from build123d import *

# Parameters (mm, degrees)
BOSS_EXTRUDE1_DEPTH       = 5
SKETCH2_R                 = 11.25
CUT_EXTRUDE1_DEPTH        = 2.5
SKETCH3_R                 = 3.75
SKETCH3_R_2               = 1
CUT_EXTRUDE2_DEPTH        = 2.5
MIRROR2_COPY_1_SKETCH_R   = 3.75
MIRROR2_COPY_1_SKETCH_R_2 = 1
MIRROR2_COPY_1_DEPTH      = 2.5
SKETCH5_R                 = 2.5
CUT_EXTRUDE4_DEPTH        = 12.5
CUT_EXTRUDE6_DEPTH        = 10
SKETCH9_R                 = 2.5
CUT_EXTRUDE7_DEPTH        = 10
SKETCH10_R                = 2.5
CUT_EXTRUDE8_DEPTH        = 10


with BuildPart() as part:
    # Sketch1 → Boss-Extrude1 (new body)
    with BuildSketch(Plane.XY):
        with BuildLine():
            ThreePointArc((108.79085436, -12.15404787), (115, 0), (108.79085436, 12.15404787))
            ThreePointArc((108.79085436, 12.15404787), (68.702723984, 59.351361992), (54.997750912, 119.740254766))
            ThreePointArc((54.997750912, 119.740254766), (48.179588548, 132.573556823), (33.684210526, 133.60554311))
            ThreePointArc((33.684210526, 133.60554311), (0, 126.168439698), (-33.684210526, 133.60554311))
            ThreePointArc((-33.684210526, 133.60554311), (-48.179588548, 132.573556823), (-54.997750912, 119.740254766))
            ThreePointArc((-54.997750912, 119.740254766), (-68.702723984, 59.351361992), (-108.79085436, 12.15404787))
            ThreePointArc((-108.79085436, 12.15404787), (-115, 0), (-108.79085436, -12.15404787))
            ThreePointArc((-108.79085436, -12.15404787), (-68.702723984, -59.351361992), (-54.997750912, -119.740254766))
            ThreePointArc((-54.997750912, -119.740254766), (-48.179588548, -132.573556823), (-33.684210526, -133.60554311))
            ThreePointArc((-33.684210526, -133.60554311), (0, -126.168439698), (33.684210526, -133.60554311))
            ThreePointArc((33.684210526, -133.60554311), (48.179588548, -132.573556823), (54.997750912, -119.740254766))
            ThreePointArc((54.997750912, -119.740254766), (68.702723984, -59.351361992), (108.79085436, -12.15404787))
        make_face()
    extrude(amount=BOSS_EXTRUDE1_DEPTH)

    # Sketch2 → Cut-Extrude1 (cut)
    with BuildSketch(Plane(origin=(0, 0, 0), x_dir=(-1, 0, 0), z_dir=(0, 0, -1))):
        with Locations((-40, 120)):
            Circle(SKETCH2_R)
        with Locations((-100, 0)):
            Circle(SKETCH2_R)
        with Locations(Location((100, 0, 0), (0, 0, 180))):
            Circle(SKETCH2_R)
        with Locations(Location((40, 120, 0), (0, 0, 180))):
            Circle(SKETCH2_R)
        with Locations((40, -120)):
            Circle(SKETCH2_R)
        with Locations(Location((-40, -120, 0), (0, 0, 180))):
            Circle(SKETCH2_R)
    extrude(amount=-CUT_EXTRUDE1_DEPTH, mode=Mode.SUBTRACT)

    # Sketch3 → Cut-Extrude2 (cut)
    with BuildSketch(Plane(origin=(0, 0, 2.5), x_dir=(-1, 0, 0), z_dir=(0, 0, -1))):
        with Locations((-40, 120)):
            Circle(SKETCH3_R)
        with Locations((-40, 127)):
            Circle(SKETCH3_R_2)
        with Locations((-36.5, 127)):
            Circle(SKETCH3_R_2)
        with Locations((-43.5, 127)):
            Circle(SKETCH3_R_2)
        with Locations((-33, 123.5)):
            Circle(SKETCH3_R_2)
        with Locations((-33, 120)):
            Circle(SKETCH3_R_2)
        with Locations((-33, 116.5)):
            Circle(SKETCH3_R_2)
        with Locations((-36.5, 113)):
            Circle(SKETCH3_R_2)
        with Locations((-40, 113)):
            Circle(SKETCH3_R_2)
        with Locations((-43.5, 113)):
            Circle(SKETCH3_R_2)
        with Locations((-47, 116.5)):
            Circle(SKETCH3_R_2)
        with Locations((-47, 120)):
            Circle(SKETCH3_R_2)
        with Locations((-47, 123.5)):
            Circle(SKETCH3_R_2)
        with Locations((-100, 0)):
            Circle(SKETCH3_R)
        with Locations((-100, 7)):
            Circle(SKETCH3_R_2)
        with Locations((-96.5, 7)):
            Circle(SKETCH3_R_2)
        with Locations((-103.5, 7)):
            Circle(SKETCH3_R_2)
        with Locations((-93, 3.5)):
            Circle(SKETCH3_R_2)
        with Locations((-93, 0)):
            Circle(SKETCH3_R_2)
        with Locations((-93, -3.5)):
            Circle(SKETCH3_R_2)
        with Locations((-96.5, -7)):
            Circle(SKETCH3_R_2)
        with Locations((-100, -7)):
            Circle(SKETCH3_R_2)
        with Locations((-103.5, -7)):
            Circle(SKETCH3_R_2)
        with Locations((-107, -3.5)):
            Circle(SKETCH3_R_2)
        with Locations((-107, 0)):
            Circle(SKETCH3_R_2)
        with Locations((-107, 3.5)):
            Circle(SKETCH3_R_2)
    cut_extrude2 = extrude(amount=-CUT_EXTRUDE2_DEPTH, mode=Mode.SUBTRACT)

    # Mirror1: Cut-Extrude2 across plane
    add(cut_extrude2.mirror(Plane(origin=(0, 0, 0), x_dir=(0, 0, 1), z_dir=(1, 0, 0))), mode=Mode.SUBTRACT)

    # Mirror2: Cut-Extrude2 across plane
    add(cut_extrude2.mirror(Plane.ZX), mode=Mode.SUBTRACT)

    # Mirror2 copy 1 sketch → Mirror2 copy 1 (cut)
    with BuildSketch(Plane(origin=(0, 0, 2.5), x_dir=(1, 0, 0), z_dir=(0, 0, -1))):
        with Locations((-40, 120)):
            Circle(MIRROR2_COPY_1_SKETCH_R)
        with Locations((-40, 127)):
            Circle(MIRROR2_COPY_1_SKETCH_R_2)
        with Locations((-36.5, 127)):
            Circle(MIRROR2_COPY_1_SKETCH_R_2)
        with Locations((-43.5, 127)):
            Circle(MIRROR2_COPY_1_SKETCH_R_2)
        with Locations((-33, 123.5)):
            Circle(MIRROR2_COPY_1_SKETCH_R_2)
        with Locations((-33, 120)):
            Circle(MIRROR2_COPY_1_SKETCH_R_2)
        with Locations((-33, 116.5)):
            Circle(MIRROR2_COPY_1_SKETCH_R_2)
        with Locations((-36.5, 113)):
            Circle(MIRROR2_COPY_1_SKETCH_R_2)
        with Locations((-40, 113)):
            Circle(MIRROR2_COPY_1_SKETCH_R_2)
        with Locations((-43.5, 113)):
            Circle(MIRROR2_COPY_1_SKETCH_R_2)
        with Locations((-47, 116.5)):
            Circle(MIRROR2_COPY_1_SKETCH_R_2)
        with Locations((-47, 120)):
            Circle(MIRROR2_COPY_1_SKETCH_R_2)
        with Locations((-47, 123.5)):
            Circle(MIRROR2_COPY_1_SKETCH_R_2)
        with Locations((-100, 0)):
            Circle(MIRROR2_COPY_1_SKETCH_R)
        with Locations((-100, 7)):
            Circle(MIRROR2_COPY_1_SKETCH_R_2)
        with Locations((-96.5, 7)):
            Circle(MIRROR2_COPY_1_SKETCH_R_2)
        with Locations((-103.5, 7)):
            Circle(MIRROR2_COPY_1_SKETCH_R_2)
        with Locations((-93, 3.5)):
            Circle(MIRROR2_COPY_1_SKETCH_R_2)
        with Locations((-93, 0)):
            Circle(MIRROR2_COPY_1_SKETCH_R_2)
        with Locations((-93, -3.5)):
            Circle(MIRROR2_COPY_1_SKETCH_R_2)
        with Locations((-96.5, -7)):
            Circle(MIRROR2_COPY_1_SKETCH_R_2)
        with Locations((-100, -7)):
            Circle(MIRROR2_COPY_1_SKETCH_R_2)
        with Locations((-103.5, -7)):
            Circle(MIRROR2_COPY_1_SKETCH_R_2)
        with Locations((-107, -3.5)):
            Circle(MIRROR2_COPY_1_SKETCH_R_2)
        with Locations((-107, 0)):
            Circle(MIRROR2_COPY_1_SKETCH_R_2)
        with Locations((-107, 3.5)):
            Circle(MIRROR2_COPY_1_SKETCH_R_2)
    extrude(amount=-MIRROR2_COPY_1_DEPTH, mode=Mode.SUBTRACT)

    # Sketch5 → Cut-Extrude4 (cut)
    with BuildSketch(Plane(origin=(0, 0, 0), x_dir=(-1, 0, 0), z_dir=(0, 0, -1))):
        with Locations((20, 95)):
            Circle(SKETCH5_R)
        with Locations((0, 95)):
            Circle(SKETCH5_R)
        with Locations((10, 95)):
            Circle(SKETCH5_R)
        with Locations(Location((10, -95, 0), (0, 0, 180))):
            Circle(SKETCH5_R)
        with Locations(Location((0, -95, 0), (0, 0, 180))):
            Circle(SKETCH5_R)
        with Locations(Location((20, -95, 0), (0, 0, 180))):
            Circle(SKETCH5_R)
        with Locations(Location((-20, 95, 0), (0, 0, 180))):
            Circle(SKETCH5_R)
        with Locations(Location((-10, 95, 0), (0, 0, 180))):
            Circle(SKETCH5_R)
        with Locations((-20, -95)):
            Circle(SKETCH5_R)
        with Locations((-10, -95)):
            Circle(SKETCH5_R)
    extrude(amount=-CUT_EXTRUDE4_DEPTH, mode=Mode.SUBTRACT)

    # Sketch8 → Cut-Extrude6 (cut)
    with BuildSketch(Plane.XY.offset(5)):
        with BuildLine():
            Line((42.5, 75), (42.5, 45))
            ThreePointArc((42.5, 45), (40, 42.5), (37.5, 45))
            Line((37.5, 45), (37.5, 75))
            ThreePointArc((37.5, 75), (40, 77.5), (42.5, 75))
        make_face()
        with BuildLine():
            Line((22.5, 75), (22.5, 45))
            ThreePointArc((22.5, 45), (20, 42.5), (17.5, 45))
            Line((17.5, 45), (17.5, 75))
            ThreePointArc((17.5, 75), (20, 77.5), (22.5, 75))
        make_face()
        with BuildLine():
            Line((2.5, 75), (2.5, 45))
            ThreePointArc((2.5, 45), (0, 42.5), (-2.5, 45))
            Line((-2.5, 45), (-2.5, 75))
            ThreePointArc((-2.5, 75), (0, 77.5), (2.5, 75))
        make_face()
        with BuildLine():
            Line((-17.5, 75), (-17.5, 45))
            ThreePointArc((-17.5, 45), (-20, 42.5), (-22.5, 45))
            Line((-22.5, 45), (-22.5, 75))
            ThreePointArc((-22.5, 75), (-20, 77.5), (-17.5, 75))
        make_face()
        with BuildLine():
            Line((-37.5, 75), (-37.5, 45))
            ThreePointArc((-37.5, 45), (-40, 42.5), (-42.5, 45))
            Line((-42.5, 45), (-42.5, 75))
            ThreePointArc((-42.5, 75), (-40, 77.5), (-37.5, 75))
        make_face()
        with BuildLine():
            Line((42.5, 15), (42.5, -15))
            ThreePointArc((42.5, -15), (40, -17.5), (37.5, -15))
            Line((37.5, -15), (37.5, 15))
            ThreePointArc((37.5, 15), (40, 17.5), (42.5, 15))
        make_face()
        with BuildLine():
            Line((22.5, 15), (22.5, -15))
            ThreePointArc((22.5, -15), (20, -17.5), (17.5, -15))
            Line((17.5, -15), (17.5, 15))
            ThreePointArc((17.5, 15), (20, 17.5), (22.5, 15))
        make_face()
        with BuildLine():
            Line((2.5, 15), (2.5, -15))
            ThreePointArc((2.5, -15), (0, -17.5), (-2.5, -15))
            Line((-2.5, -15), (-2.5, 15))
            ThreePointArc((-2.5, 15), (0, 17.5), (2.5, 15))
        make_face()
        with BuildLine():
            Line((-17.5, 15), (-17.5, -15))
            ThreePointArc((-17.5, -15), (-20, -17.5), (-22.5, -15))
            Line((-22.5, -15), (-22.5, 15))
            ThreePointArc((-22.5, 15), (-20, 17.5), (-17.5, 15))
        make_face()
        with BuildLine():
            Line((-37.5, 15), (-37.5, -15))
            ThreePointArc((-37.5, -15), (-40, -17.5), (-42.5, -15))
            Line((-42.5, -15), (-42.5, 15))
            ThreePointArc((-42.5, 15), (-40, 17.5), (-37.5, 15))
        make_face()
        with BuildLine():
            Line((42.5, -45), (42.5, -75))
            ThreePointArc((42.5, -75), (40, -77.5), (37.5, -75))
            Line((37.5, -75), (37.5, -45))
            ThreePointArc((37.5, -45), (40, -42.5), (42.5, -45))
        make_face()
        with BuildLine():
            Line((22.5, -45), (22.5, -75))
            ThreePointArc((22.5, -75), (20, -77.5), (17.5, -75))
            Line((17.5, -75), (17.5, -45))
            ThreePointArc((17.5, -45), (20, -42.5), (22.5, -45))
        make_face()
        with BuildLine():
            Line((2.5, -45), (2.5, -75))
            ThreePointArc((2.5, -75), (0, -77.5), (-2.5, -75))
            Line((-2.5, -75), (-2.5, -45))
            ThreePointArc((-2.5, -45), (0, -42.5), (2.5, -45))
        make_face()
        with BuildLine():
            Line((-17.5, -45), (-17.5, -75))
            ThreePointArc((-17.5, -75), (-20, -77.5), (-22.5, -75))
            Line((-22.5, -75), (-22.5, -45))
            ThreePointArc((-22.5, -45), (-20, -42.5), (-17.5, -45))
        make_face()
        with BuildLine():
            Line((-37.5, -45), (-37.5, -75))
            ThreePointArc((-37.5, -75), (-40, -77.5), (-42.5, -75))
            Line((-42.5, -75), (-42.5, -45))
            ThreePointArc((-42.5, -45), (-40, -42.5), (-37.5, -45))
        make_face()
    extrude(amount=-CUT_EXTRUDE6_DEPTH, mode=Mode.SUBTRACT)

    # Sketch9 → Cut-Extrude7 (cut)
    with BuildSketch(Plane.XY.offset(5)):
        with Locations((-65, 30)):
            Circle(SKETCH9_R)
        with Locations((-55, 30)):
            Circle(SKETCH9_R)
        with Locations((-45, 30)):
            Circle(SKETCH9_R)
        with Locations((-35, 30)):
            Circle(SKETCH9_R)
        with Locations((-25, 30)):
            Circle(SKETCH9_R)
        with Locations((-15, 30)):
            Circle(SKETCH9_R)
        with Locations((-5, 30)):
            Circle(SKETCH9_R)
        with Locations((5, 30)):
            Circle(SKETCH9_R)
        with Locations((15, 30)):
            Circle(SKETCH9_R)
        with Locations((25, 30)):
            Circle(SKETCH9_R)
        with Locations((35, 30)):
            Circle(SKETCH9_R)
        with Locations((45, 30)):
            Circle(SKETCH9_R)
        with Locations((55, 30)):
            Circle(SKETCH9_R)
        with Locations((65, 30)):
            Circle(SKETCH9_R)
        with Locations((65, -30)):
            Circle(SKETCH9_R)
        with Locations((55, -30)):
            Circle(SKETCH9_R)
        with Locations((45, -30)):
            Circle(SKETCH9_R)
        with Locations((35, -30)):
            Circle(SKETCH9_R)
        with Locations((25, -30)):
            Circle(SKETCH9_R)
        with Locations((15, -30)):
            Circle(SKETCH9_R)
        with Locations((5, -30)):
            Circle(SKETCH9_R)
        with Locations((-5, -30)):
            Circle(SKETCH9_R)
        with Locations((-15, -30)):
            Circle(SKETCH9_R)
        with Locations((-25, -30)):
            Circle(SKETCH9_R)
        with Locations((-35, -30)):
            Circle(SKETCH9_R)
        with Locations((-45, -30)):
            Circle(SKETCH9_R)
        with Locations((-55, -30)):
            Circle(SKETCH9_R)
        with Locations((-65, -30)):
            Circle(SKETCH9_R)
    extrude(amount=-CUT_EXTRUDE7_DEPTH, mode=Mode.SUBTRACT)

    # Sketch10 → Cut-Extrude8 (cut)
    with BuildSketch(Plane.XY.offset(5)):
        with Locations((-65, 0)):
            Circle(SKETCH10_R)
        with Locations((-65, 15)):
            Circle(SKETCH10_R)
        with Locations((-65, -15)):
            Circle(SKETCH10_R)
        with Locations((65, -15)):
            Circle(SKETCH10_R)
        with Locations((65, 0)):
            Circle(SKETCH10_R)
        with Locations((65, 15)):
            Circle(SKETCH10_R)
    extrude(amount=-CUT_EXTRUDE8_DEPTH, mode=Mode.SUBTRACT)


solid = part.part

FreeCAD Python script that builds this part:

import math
import FreeCAD as App
import Part
import Sketcher
Q = App.Units.Quantity

doc = App.newDocument("Part")
body = doc.addObject("PartDesign::Body", "Body")

sketch1 = doc.addObject("Sketcher::SketchObject", "Sketch")
body.addObject(sketch1)
sketch1.AttachmentSupport = (doc.XY_Plane, [""])
sketch1.MapMode = "FlatFace"
sketch1.addGeometry([
    Part.ArcOfCircle(Part.Circle(App.Vector(100, 0, 0), App.Vector(0, 0, 1), 15), math.radians(-54), math.radians(54)),
    Part.ArcOfCircle(Part.Circle(App.Vector(185, 117, 0), App.Vector(0, 0, 1), 130), math.radians(179), math.radians(234)),
    Part.ArcOfCircle(Part.Circle(App.Vector(40, 120, 0), App.Vector(0, 0, 1), 15), math.radians(-1), math.radians(115)),
    Part.ArcOfCircle(Part.Circle(App.Vector(0, 206, 0), App.Vector(0, 0, 1), 80), math.radians(-115), math.radians(-65)),
    Part.ArcOfCircle(Part.Circle(App.Vector(-40, 120, 0), App.Vector(0, 0, 1), 15), math.radians(65), math.radians(181)),
    Part.ArcOfCircle(Part.Circle(App.Vector(-185, 117, 0), App.Vector(0, 0, 1), 130), math.radians(-54), math.radians(1)),
    Part.ArcOfCircle(Part.Circle(App.Vector(-100, 0, 0), App.Vector(0, 0, 1), 15), math.radians(126), math.radians(234)),
    Part.ArcOfCircle(Part.Circle(App.Vector(-185, -117, 0), App.Vector(0, 0, 1), 130), math.radians(-1), math.radians(54)),
    Part.ArcOfCircle(Part.Circle(App.Vector(-40, -120, 0), App.Vector(0, 0, 1), 15), math.radians(179), math.radians(295)),
    Part.ArcOfCircle(Part.Circle(App.Vector(0, -206, 0), App.Vector(0, 0, 1), 80), math.radians(65), math.radians(115)),
    Part.ArcOfCircle(Part.Circle(App.Vector(40, -120, 0), App.Vector(0, 0, 1), 15), math.radians(-115), math.radians(1)),
    Part.ArcOfCircle(Part.Circle(App.Vector(185, -117, 0), App.Vector(0, 0, 1), 130), math.radians(126), math.radians(181)),
], False)
sketch1.addConstraint([
    Sketcher.Constraint("Tangent", 0, 2, 1, 2),
    Sketcher.Constraint("Tangent", 1, 1, 2, 1),
    Sketcher.Constraint("Tangent", 2, 2, 3, 2),
    Sketcher.Constraint("Tangent", 3, 1, 4, 1),
    Sketcher.Constraint("Tangent", 4, 2, 5, 2),
    Sketcher.Constraint("Tangent", 5, 1, 6, 1),
    Sketcher.Constraint("Tangent", 6, 2, 7, 2),
    Sketcher.Constraint("Tangent", 7, 1, 8, 1),
    Sketcher.Constraint("Tangent", 8, 2, 9, 2),
    Sketcher.Constraint("Tangent", 9, 1, 10, 1),
    Sketcher.Constraint("Tangent", 10, 2, 11, 2),
    Sketcher.Constraint("Tangent", 11, 1, 0, 1),
    Sketcher.Constraint("Equal", 0, 2),
    Sketcher.Constraint("Equal", 2, 4),
    Sketcher.Constraint("Equal", 1, 5),
    Sketcher.Constraint("Equal", 4, 6),
    Sketcher.Constraint("Equal", 5, 7),
    Sketcher.Constraint("Equal", 6, 8),
    Sketcher.Constraint("Equal", 3, 9),
    Sketcher.Constraint("Equal", 8, 10),
    Sketcher.Constraint("Equal", 7, 11),
    Sketcher.Constraint("Symmetric", 0, 3, 6, 3, -1, 1),
    Sketcher.Constraint("Symmetric", 2, 3, 8, 3, -1, 1),
    Sketcher.Constraint("Symmetric", 4, 3, 10, 3, -1, 1),
    Sketcher.Constraint("Symmetric", 2, 3, 4, 3, -2),
    Sketcher.Constraint("PointOnObject", 0, 3, -1),
    Sketcher.Constraint("Radius", 0, Q("15 mm")),
    Sketcher.Constraint("Radius", 1, Q("130 mm")),
    Sketcher.Constraint("Radius", 3, Q("80 mm")),
    Sketcher.Constraint("DistanceX", -1, 1, 0, 3, Q("100 mm")),
    Sketcher.Constraint("DistanceX", -1, 1, 2, 3, Q("40 mm")),
    Sketcher.Constraint("DistanceY", -1, 1, 2, 3, Q("120 mm")),
])
pad1 = doc.addObject("PartDesign::Pad", "Pad")
body.addObject(pad1)
pad1.Profile = sketch1
pad1.Length = 5

sketch2 = doc.addObject("Sketcher::SketchObject", "Sketch001")
body.addObject(sketch2)
sketch2.AttachmentSupport = (doc.XY_Plane, [""])
sketch2.MapMode = "FlatFace"
sketch2.addGeometry([
    Part.Circle(App.Vector(40, 120, 0), App.Vector(0, 0, 1), 11),
    Part.Circle(App.Vector(100, 0, 0), App.Vector(0, 0, 1), 11),
    Part.Circle(App.Vector(-100, 0, 0), App.Vector(0, 0, 1), 11),
    Part.Circle(App.Vector(-40, 120, 0), App.Vector(0, 0, 1), 11),
    Part.Circle(App.Vector(-40, -120, 0), App.Vector(0, 0, 1), 11),
    Part.Circle(App.Vector(40, -120, 0), App.Vector(0, 0, 1), 11),
], False)
sketch2.addConstraint([
    Sketcher.Constraint("Equal", 0, 1),
    Sketcher.Constraint("Equal", 1, 2),
    Sketcher.Constraint("Equal", 2, 3),
    Sketcher.Constraint("Equal", 3, 4),
    Sketcher.Constraint("Equal", 4, 5),
    Sketcher.Constraint("Symmetric", 1, 3, 2, 3, -1, 1),
    Sketcher.Constraint("Symmetric", 0, 3, 4, 3, -1, 1),
    Sketcher.Constraint("Symmetric", 3, 3, 5, 3, -1, 1),
    Sketcher.Constraint("Symmetric", 0, 3, 3, 3, -2),
    Sketcher.Constraint("PointOnObject", 1, 3, -1),
    Sketcher.Constraint("Diameter", 0, Q("22.5 mm")),
    Sketcher.Constraint("DistanceX", -1, 1, 0, 3, Q("40 mm")),
    Sketcher.Constraint("DistanceY", -1, 1, 0, 3, Q("120 mm")),
    Sketcher.Constraint("DistanceX", -1, 1, 1, 3, Q("100 mm")),
])
pocket1 = doc.addObject("PartDesign::Pocket", "Pocket")
body.addObject(pocket1)
pocket1.Profile = sketch2
pocket1.Length = 2.5
pocket1.Reversed = True

sketch3 = doc.addObject("Sketcher::SketchObject", "Sketch002")
body.addObject(sketch3)
sketch3.AttachmentSupport = (doc.XY_Plane, [""])
sketch3.MapMode = "FlatFace"
sketch3.AttachmentOffset = App.Placement(App.Vector(0, 0, 2.5), App.Rotation())
sketch3.addGeometry([
    Part.Circle(App.Vector(40, 120, 0), App.Vector(0, 0, 1), 3.8),
    Part.Circle(App.Vector(40, 127, 0), App.Vector(0, 0, 1), 1),
    Part.Circle(App.Vector(36.5, 127, 0), App.Vector(0, 0, 1), 1),
    Part.Circle(App.Vector(43.5, 127, 0), App.Vector(0, 0, 1), 1),
    Part.Circle(App.Vector(33, 123.5, 0), App.Vector(0, 0, 1), 1),
    Part.Circle(App.Vector(33, 120, 0), App.Vector(0, 0, 1), 1),
    Part.Circle(App.Vector(33, 116.5, 0), App.Vector(0, 0, 1), 1),
    Part.Circle(App.Vector(36.5, 113, 0), App.Vector(0, 0, 1), 1),
    Part.Circle(App.Vector(40, 113, 0), App.Vector(0, 0, 1), 1),
    Part.Circle(App.Vector(43.5, 113, 0), App.Vector(0, 0, 1), 1),
    Part.Circle(App.Vector(47, 116.5, 0), App.Vector(0, 0, 1), 1),
    Part.Circle(App.Vector(47, 120, 0), App.Vector(0, 0, 1), 1),
    Part.Circle(App.Vector(47, 123.5, 0), App.Vector(0, 0, 1), 1),
    Part.Circle(App.Vector(100, 0, 0), App.Vector(0, 0, 1), 3.8),
    Part.Circle(App.Vector(100, 7, 0), App.Vector(0, 0, 1), 1),
    Part.Circle(App.Vector(96.5, 7, 0), App.Vector(0, 0, 1), 1),
    Part.Circle(App.Vector(103.5, 7, 0), App.Vector(0, 0, 1), 1),
    Part.Circle(App.Vector(93, 3.5, 0), App.Vector(0, 0, 1), 1),
    Part.Circle(App.Vector(93, 0, 0), App.Vector(0, 0, 1), 1),
    Part.Circle(App.Vector(93, -3.5, 0), App.Vector(0, 0, 1), 1),
    Part.Circle(App.Vector(96.5, -7, 0), App.Vector(0, 0, 1), 1),
    Part.Circle(App.Vector(100, -7, 0), App.Vector(0, 0, 1), 1),
    Part.Circle(App.Vector(103.5, -7, 0), App.Vector(0, 0, 1), 1),
    Part.Circle(App.Vector(107, -3.5, 0), App.Vector(0, 0, 1), 1),
    Part.Circle(App.Vector(107, 0, 0), App.Vector(0, 0, 1), 1),
    Part.Circle(App.Vector(107, 3.5, 0), App.Vector(0, 0, 1), 1),
], False)
sketch3.addConstraint([
    Sketcher.Constraint("Equal", 1, 2),
    Sketcher.Constraint("Equal", 2, 3),
    Sketcher.Constraint("Equal", 3, 4),
    Sketcher.Constraint("Equal", 4, 5),
    Sketcher.Constraint("Equal", 5, 6),
    Sketcher.Constraint("Equal", 6, 7),
    Sketcher.Constraint("Equal", 7, 8),
    Sketcher.Constraint("Equal", 8, 9),
    Sketcher.Constraint("Equal", 9, 10),
    Sketcher.Constraint("Equal", 10, 11),
    Sketcher.Constraint("Equal", 11, 12),
    Sketcher.Constraint("Equal", 0, 13),
    Sketcher.Constraint("Equal", 12, 14),
    Sketcher.Constraint("Equal", 14, 15),
    Sketcher.Constraint("Equal", 15, 16),
    Sketcher.Constraint("Equal", 16, 17),
    Sketcher.Constraint("Equal", 17, 18),
    Sketcher.Constraint("Equal", 18, 19),
    Sketcher.Constraint("Equal", 19, 20),
    Sketcher.Constraint("Equal", 20, 21),
    Sketcher.Constraint("Equal", 21, 22),
    Sketcher.Constraint("Equal", 22, 23),
    Sketcher.Constraint("Equal", 23, 24),
    Sketcher.Constraint("Equal", 24, 25),
    Sketcher.Constraint("Symmetric", 17, 3, 19, 3, -1),
    Sketcher.Constraint("Symmetric", 15, 3, 20, 3, -1),
    Sketcher.Constraint("Symmetric", 14, 3, 21, 3, -1),
    Sketcher.Constraint("Symmetric", 16, 3, 22, 3, -1),
    Sketcher.Constraint("Symmetric", 23, 3, 25, 3, -1),
    Sketcher.Constraint("PointOnObject", 13, 3, -1),
    Sketcher.Constraint("PointOnObject", 18, 3, -1),
    Sketcher.Constraint("PointOnObject", 24, 3, -1),
    Sketcher.Constraint("Horizontal", 1, 3, 2, 3),
    Sketcher.Constraint("Horizontal", 2, 3, 3, 3),
    Sketcher.Constraint("Horizontal", 0, 3, 5, 3),
    Sketcher.Constraint("Horizontal", 7, 3, 8, 3),
    Sketcher.Constraint("Horizontal", 8, 3, 9, 3),
    Sketcher.Constraint("Horizontal", 6, 3, 10, 3),
    Sketcher.Constraint("Horizontal", 5, 3, 11, 3),
    Sketcher.Constraint("Horizontal", 4, 3, 12, 3),
    Sketcher.Constraint("Horizontal", 14, 3, 15, 3),
    Sketcher.Constraint("Horizontal", 15, 3, 16, 3),
    Sketcher.Constraint("Horizontal", 19, 3, 23, 3),
    Sketcher.Constraint("Vertical", 0, 3, 1, 3),
    Sketcher.Constraint("Vertical", 4, 3, 5, 3),
    Sketcher.Constraint("Vertical", 5, 3, 6, 3),
    Sketcher.Constraint("Vertical", 2, 3, 7, 3),
    Sketcher.Constraint("Vertical", 1, 3, 8, 3),
    Sketcher.Constraint("Vertical", 3, 3, 9, 3),
    Sketcher.Constraint("Vertical", 10, 3, 11, 3),
    Sketcher.Constraint("Vertical", 11, 3, 12, 3),
    Sketcher.Constraint("Vertical", 13, 3, 14, 3),
    Sketcher.Constraint("Vertical", 17, 3, 18, 3),
    Sketcher.Constraint("Vertical", 23, 3, 24, 3),
    Sketcher.Constraint("Diameter", 1, Q("2 mm")),
    Sketcher.Constraint("Diameter", 0, Q("7.5 mm")),
    Sketcher.Constraint("DistanceX", -1, 1, 0, 3, Q("40 mm")),
    Sketcher.Constraint("DistanceY", -1, 1, 0, 3, Q("120 mm")),
    Sketcher.Constraint("DistanceY", -1, 1, 1, 3, Q("127 mm")),
    Sketcher.Constraint("DistanceX", -1, 1, 4, 3, Q("33 mm")),
    Sketcher.Constraint("DistanceY", -1, 1, 7, 3, Q("113 mm")),
    Sketcher.Constraint("DistanceX", -1, 1, 10, 3, Q("47 mm")),
    Sketcher.Constraint("DistanceX", -1, 1, 13, 3, Q("100 mm")),
    Sketcher.Constraint("DistanceY", -1, 1, 14, 3, Q("7 mm")),
    Sketcher.Constraint("DistanceX", -1, 1, 17, 3, Q("93 mm")),
    Sketcher.Constraint("DistanceX", -1, 1, 23, 3, Q("107 mm")),
    Sketcher.Constraint("DistanceX", 2, 3, 3, 3, Q("7 mm")),
    Sketcher.Constraint("DistanceY", 6, 3, 4, 3, Q("7 mm")),
    Sketcher.Constraint("DistanceX", 9, 3, 15, 3, Q("53 mm")),
    Sketcher.Constraint("DistanceX", 15, 3, 16, 3, Q("7 mm")),
    Sketcher.Constraint("DistanceY", 19, 3, 17, 3, Q("7 mm")),
    Sketcher.Constraint("DistanceX", -1, 1, 2, 3, Q("36.5 mm")),
    Sketcher.Constraint("DistanceY", -1, 1, 4, 3, Q("123.5 mm")),
])
pocket2 = doc.addObject("PartDesign::Pocket", "Pocket001")
body.addObject(pocket2)
pocket2.Profile = sketch3
pocket2.Length = 2.5
pocket2.Reversed = True
doc.recompute()

mirrored = doc.addObject("PartDesign::Mirrored", "Mirrored")
body.addObject(mirrored)
mirrored.Originals = [pocket2]
mirrored.MirrorPlane = (doc.YZ_Plane, [""])
body.Tip = mirrored
doc.recompute()

mirrored2 = doc.addObject("PartDesign::Mirrored", "Mirrored001")
body.addObject(mirrored2)
mirrored2.Originals = [pocket2]
mirrored2.MirrorPlane = (doc.XZ_Plane, [""])
body.Tip = mirrored2

sketch4 = doc.addObject("Sketcher::SketchObject", "Sketch003")
body.addObject(sketch4)
sketch4.AttachmentSupport = (doc.XY_Plane, [""])
sketch4.MapMode = "FlatFace"
sketch4.AttachmentOffset = App.Placement(App.Vector(0, 0, 2.5), App.Rotation())
sketch4.addGeometry([
    Part.Circle(App.Vector(-40, -120, 0), App.Vector(0, 0, 1), 3.8),
    Part.Circle(App.Vector(-40, -127, 0), App.Vector(0, 0, 1), 1),
    Part.Circle(App.Vector(-36.5, -127, 0), App.Vector(0, 0, 1), 1),
    Part.Circle(App.Vector(-43.5, -127, 0), App.Vector(0, 0, 1), 1),
    Part.Circle(App.Vector(-33, -123.5, 0), App.Vector(0, 0, 1), 1),
    Part.Circle(App.Vector(-33, -120, 0), App.Vector(0, 0, 1), 1),
    Part.Circle(App.Vector(-33, -116.5, 0), App.Vector(0, 0, 1), 1),
    Part.Circle(App.Vector(-36.5, -113, 0), App.Vector(0, 0, 1), 1),
    Part.Circle(App.Vector(-40, -113, 0), App.Vector(0, 0, 1), 1),
    Part.Circle(App.Vector(-43.5, -113, 0), App.Vector(0, 0, 1), 1),
    Part.Circle(App.Vector(-47, -116.5, 0), App.Vector(0, 0, 1), 1),
    Part.Circle(App.Vector(-47, -120, 0), App.Vector(0, 0, 1), 1),
    Part.Circle(App.Vector(-47, -123.5, 0), App.Vector(0, 0, 1), 1),
    Part.Circle(App.Vector(-100, 0, 0), App.Vector(0, 0, 1), 3.8),
    Part.Circle(App.Vector(-100, -7, 0), App.Vector(0, 0, 1), 1),
    Part.Circle(App.Vector(-96.5, -7, 0), App.Vector(0, 0, 1), 1),
    Part.Circle(App.Vector(-103.5, -7, 0), App.Vector(0, 0, 1), 1),
    Part.Circle(App.Vector(-93, -3.5, 0), App.Vector(0, 0, 1), 1),
    Part.Circle(App.Vector(-93, 0, 0), App.Vector(0, 0, 1), 1),
    Part.Circle(App.Vector(-93, 3.5, 0), App.Vector(0, 0, 1), 1),
    Part.Circle(App.Vector(-96.5, 7, 0), App.Vector(0, 0, 1), 1),
    Part.Circle(App.Vector(-100, 7, 0), App.Vector(0, 0, 1), 1),
    Part.Circle(App.Vector(-103.5, 7, 0), App.Vector(0, 0, 1), 1),
    Part.Circle(App.Vector(-107, 3.5, 0), App.Vector(0, 0, 1), 1),
    Part.Circle(App.Vector(-107, 0, 0), App.Vector(0, 0, 1), 1),
    Part.Circle(App.Vector(-107, -3.5, 0), App.Vector(0, 0, 1), 1),
], False)
sketch4.addConstraint([
    Sketcher.Constraint("Equal", 1, 2),
    Sketcher.Constraint("Equal", 2, 3),
    Sketcher.Constraint("Equal", 3, 4),
    Sketcher.Constraint("Equal", 4, 5),
    Sketcher.Constraint("Equal", 5, 6),
    Sketcher.Constraint("Equal", 6, 7),
    Sketcher.Constraint("Equal", 7, 8),
    Sketcher.Constraint("Equal", 8, 9),
    Sketcher.Constraint("Equal", 9, 10),
    Sketcher.Constraint("Equal", 10, 11),
    Sketcher.Constraint("Equal", 11, 12),
    Sketcher.Constraint("Equal", 0, 13),
    Sketcher.Constraint("Equal", 12, 14),
    Sketcher.Constraint("Equal", 14, 15),
    Sketcher.Constraint("Equal", 15, 16),
    Sketcher.Constraint("Equal", 16, 17),
    Sketcher.Constraint("Equal", 17, 18),
    Sketcher.Constraint("Equal", 18, 19),
    Sketcher.Constraint("Equal", 19, 20),
    Sketcher.Constraint("Equal", 20, 21),
    Sketcher.Constraint("Equal", 21, 22),
    Sketcher.Constraint("Equal", 22, 23),
    Sketcher.Constraint("Equal", 23, 24),
    Sketcher.Constraint("Equal", 24, 25),
    Sketcher.Constraint("Symmetric", 17, 3, 19, 3, -1),
    Sketcher.Constraint("Symmetric", 15, 3, 20, 3, -1),
    Sketcher.Constraint("Symmetric", 14, 3, 21, 3, -1),
    Sketcher.Constraint("Symmetric", 16, 3, 22, 3, -1),
    Sketcher.Constraint("Symmetric", 23, 3, 25, 3, -1),
    Sketcher.Constraint("PointOnObject", 13, 3, -1),
    Sketcher.Constraint("PointOnObject", 18, 3, -1),
    Sketcher.Constraint("PointOnObject", 24, 3, -1),
    Sketcher.Constraint("Horizontal", 1, 3, 2, 3),
    Sketcher.Constraint("Horizontal", 2, 3, 3, 3),
    Sketcher.Constraint("Horizontal", 0, 3, 5, 3),
    Sketcher.Constraint("Horizontal", 7, 3, 8, 3),
    Sketcher.Constraint("Horizontal", 8, 3, 9, 3),
    Sketcher.Constraint("Horizontal", 6, 3, 10, 3),
    Sketcher.Constraint("Horizontal", 5, 3, 11, 3),
    Sketcher.Constraint("Horizontal", 4, 3, 12, 3),
    Sketcher.Constraint("Horizontal", 14, 3, 15, 3),
    Sketcher.Constraint("Horizontal", 15, 3, 16, 3),
    Sketcher.Constraint("Horizontal", 19, 3, 23, 3),
    Sketcher.Constraint("Vertical", 0, 3, 1, 3),
    Sketcher.Constraint("Vertical", 4, 3, 5, 3),
    Sketcher.Constraint("Vertical", 5, 3, 6, 3),
    Sketcher.Constraint("Vertical", 2, 3, 7, 3),
    Sketcher.Constraint("Vertical", 1, 3, 8, 3),
    Sketcher.Constraint("Vertical", 3, 3, 9, 3),
    Sketcher.Constraint("Vertical", 10, 3, 11, 3),
    Sketcher.Constraint("Vertical", 11, 3, 12, 3),
    Sketcher.Constraint("Vertical", 13, 3, 14, 3),
    Sketcher.Constraint("Vertical", 17, 3, 18, 3),
    Sketcher.Constraint("Vertical", 23, 3, 24, 3),
    Sketcher.Constraint("Diameter", 1, Q("2 mm")),
    Sketcher.Constraint("Diameter", 0, Q("7.5 mm")),
    Sketcher.Constraint("DistanceX", 0, 3, -1, 1, Q("40 mm")),
    Sketcher.Constraint("DistanceY", 0, 3, -1, 1, Q("120 mm")),
    Sketcher.Constraint("DistanceY", 1, 3, -1, 1, Q("127 mm")),
    Sketcher.Constraint("DistanceX", 4, 3, -1, 1, Q("33 mm")),
    Sketcher.Constraint("DistanceY", 7, 3, -1, 1, Q("113 mm")),
    Sketcher.Constraint("DistanceX", 10, 3, -1, 1, Q("47 mm")),
    Sketcher.Constraint("DistanceX", 13, 3, -1, 1, Q("100 mm")),
    Sketcher.Constraint("DistanceY", 14, 3, -1, 1, Q("7 mm")),
    Sketcher.Constraint("DistanceX", 17, 3, -1, 1, Q("93 mm")),
    Sketcher.Constraint("DistanceX", 23, 3, -1, 1, Q("107 mm")),
    Sketcher.Constraint("DistanceX", 3, 3, 2, 3, Q("7 mm")),
    Sketcher.Constraint("DistanceY", 4, 3, 6, 3, Q("7 mm")),
    Sketcher.Constraint("DistanceX", 15, 3, 9, 3, Q("53 mm")),
    Sketcher.Constraint("DistanceX", 16, 3, 15, 3, Q("7 mm")),
    Sketcher.Constraint("DistanceY", 17, 3, 19, 3, Q("7 mm")),
    Sketcher.Constraint("DistanceX", 2, 3, -1, 1, Q("36.5 mm")),
    Sketcher.Constraint("DistanceY", 4, 3, -1, 1, Q("123.5 mm")),
])
pocket3 = doc.addObject("PartDesign::Pocket", "Pocket002")
body.addObject(pocket3)
pocket3.Profile = sketch4
pocket3.Length = 2.5
pocket3.Reversed = True

sketch5 = doc.addObject("Sketcher::SketchObject", "Sketch004")
body.addObject(sketch5)
sketch5.AttachmentSupport = (doc.XY_Plane, [""])
sketch5.MapMode = "FlatFace"
sketch5.addGeometry([
    Part.Circle(App.Vector(-20, 95, 0), App.Vector(0, 0, 1), 2.5),
    Part.Circle(App.Vector(0, 95, 0), App.Vector(0, 0, 1), 2.5),
    Part.Circle(App.Vector(-10, 95, 0), App.Vector(0, 0, 1), 2.5),
    Part.Circle(App.Vector(-10, -95, 0), App.Vector(0, 0, 1), 2.5),
    Part.Circle(App.Vector(0, -95, 0), App.Vector(0, 0, 1), 2.5),
    Part.Circle(App.Vector(-20, -95, 0), App.Vector(0, 0, 1), 2.5),
    Part.Circle(App.Vector(20, 95, 0), App.Vector(0, 0, 1), 2.5),
    Part.Circle(App.Vector(10, 95, 0), App.Vector(0, 0, 1), 2.5),
    Part.Circle(App.Vector(20, -95, 0), App.Vector(0, 0, 1), 2.5),
    Part.Circle(App.Vector(10, -95, 0), App.Vector(0, 0, 1), 2.5),
], False)
sketch5.addConstraint([
    Sketcher.Constraint("Equal", 0, 1),
    Sketcher.Constraint("Equal", 1, 2),
    Sketcher.Constraint("Equal", 2, 3),
    Sketcher.Constraint("Equal", 3, 4),
    Sketcher.Constraint("Equal", 4, 5),
    Sketcher.Constraint("Equal", 5, 6),
    Sketcher.Constraint("Equal", 6, 7),
    Sketcher.Constraint("Equal", 7, 8),
    Sketcher.Constraint("Equal", 8, 9),
    Sketcher.Constraint("Symmetric", 1, 3, 4, 3, -1, 1),
    Sketcher.Constraint("Symmetric", 5, 3, 6, 3, -1, 1),
    Sketcher.Constraint("Symmetric", 3, 3, 7, 3, -1, 1),
    Sketcher.Constraint("Symmetric", 0, 3, 8, 3, -1, 1),
    Sketcher.Constraint("Symmetric", 2, 3, 9, 3, -1, 1),
    Sketcher.Constraint("Symmetric", 0, 3, 6, 3, -2),
    Sketcher.Constraint("Symmetric", 2, 3, 7, 3, -2),
    Sketcher.Constraint("PointOnObject", 1, 3, -2),
    Sketcher.Constraint("Horizontal", 0, 3, 1, 3),
    Sketcher.Constraint("Horizontal", 1, 3, 2, 3),
    Sketcher.Constraint("Diameter", 0, Q("5 mm")),
    Sketcher.Constraint("DistanceX", 0, 3, -1, 1, Q("20 mm")),
    Sketcher.Constraint("DistanceY", -1, 1, 0, 3, Q("95 mm")),
    Sketcher.Constraint("DistanceX", 2, 3, -1, 1, Q("10 mm")),
])
pocket4 = doc.addObject("PartDesign::Pocket", "Pocket003")
body.addObject(pocket4)
pocket4.Profile = sketch5
pocket4.Length = 12.5
pocket4.Reversed = True

sketch6 = doc.addObject("Sketcher::SketchObject", "Sketch005")
body.addObject(sketch6)
sketch6.AttachmentSupport = (doc.XY_Plane, [""])
sketch6.MapMode = "FlatFace"
sketch6.AttachmentOffset = App.Placement(App.Vector(0, 0, 5), App.Rotation())
sketch6.addGeometry([
    Part.LineSegment(App.Vector(42.5, 45, 0), App.Vector(42.5, 75, 0)),
    Part.ArcOfCircle(Part.Circle(App.Vector(40, 75, 0), App.Vector(0, 0, 1), 2.5), math.radians(0), math.radians(180)),
    Part.LineSegment(App.Vector(37.5, 75, 0), App.Vector(37.5, 45, 0)),
    Part.ArcOfCircle(Part.Circle(App.Vector(40, 45, 0), App.Vector(0, 0, 1), 2.5), math.radians(180), math.radians(360)),
    Part.LineSegment(App.Vector(22.5, 45, 0), App.Vector(22.5, 75, 0)),
    Part.ArcOfCircle(Part.Circle(App.Vector(20, 75, 0), App.Vector(0, 0, 1), 2.5), math.radians(0), math.radians(180)),
    Part.LineSegment(App.Vector(17.5, 75, 0), App.Vector(17.5, 45, 0)),
    Part.ArcOfCircle(Part.Circle(App.Vector(20, 45, 0), App.Vector(0, 0, 1), 2.5), math.radians(180), math.radians(360)),
    Part.LineSegment(App.Vector(2.5, 45, 0), App.Vector(2.5, 75, 0)),
    Part.ArcOfCircle(Part.Circle(App.Vector(0, 75, 0), App.Vector(0, 0, 1), 2.5), math.radians(0), math.radians(180)),
    Part.LineSegment(App.Vector(-2.5, 75, 0), App.Vector(-2.5, 45, 0)),
    Part.ArcOfCircle(Part.Circle(App.Vector(0, 45, 0), App.Vector(0, 0, 1), 2.5), math.radians(180), math.radians(360)),
    Part.LineSegment(App.Vector(-17.5, 45, 0), App.Vector(-17.5, 75, 0)),
    Part.ArcOfCircle(Part.Circle(App.Vector(-20, 75, 0), App.Vector(0, 0, 1), 2.5), math.radians(0), math.radians(180)),
    Part.LineSegment(App.Vector(-22.5, 75, 0), App.Vector(-22.5, 45, 0)),
    Part.ArcOfCircle(Part.Circle(App.Vector(-20, 45, 0), App.Vector(0, 0, 1), 2.5), math.radians(180), math.radians(360)),
    Part.LineSegment(App.Vector(-37.5, 45, 0), App.Vector(-37.5, 75, 0)),
    Part.ArcOfCircle(Part.Circle(App.Vector(-40, 75, 0), App.Vector(0, 0, 1), 2.5), math.radians(0), math.radians(180)),
    Part.LineSegment(App.Vector(-42.5, 75, 0), App.Vector(-42.5, 45, 0)),
    Part.ArcOfCircle(Part.Circle(App.Vector(-40, 45, 0), App.Vector(0, 0, 1), 2.5), math.radians(180), math.radians(360)),
    Part.LineSegment(App.Vector(42.5, -15, 0), App.Vector(42.5, 15, 0)),
    Part.ArcOfCircle(Part.Circle(App.Vector(40, 15, 0), App.Vector(0, 0, 1), 2.5), math.radians(0), math.radians(180)),
    Part.LineSegment(App.Vector(37.5, 15, 0), App.Vector(37.5, -15, 0)),
    Part.ArcOfCircle(Part.Circle(App.Vector(40, -15, 0), App.Vector(0, 0, 1), 2.5), math.radians(180), math.radians(360)),
    Part.LineSegment(App.Vector(22.5, -15, 0), App.Vector(22.5, 15, 0)),
    Part.ArcOfCircle(Part.Circle(App.Vector(20, 15, 0), App.Vector(0, 0, 1), 2.5), math.radians(0), math.radians(180)),
    Part.LineSegment(App.Vector(17.5, 15, 0), App.Vector(17.5, -15, 0)),
    Part.ArcOfCircle(Part.Circle(App.Vector(20, -15, 0), App.Vector(0, 0, 1), 2.5), math.radians(180), math.radians(360)),
    Part.LineSegment(App.Vector(2.5, -15, 0), App.Vector(2.5, 15, 0)),
    Part.ArcOfCircle(Part.Circle(App.Vector(0, 15, 0), App.Vector(0, 0, 1), 2.5), math.radians(0), math.radians(180)),
    Part.LineSegment(App.Vector(-2.5, 15, 0), App.Vector(-2.5, -15, 0)),
    Part.ArcOfCircle(Part.Circle(App.Vector(0, -15, 0), App.Vector(0, 0, 1), 2.5), math.radians(180), math.radians(360)),
    Part.LineSegment(App.Vector(-17.5, -15, 0), App.Vector(-17.5, 15, 0)),
    Part.ArcOfCircle(Part.Circle(App.Vector(-20, 15, 0), App.Vector(0, 0, 1), 2.5), math.radians(0), math.radians(180)),
    Part.LineSegment(App.Vector(-22.5, 15, 0), App.Vector(-22.5, -15, 0)),
    Part.ArcOfCircle(Part.Circle(App.Vector(-20, -15, 0), App.Vector(0, 0, 1), 2.5), math.radians(180), math.radians(360)),
    Part.LineSegment(App.Vector(-37.5, -15, 0), App.Vector(-37.5, 15, 0)),
    Part.ArcOfCircle(Part.Circle(App.Vector(-40, 15, 0), App.Vector(0, 0, 1), 2.5), math.radians(0), math.radians(180)),
    Part.LineSegment(App.Vector(-42.5, 15, 0), App.Vector(-42.5, -15, 0)),
    Part.ArcOfCircle(Part.Circle(App.Vector(-40, -15, 0), App.Vector(0, 0, 1), 2.5), math.radians(180), math.radians(360)),
    Part.LineSegment(App.Vector(42.5, -75, 0), App.Vector(42.5, -45, 0)),
    Part.ArcOfCircle(Part.Circle(App.Vector(40, -45, 0), App.Vector(0, 0, 1), 2.5), math.radians(0), math.radians(180)),
    Part.LineSegment(App.Vector(37.5, -45, 0), App.Vector(37.5, -75, 0)),
    Part.ArcOfCircle(Part.Circle(App.Vector(40, -75, 0), App.Vector(0, 0, 1), 2.5), math.radians(180), math.radians(360)),
    Part.LineSegment(App.Vector(22.5, -75, 0), App.Vector(22.5, -45, 0)),
    Part.ArcOfCircle(Part.Circle(App.Vector(20, -45, 0), App.Vector(0, 0, 1), 2.5), math.radians(0), math.radians(180)),
    Part.LineSegment(App.Vector(17.5, -45, 0), App.Vector(17.5, -75, 0)),
    Part.ArcOfCircle(Part.Circle(App.Vector(20, -75, 0), App.Vector(0, 0, 1), 2.5), math.radians(180), math.radians(360)),
    Part.LineSegment(App.Vector(2.5, -75, 0), App.Vector(2.5, -45, 0)),
    Part.ArcOfCircle(Part.Circle(App.Vector(0, -45, 0), App.Vector(0, 0, 1), 2.5), math.radians(0), math.radians(180)),
    Part.LineSegment(App.Vector(-2.5, -45, 0), App.Vector(-2.5, -75, 0)),
    Part.ArcOfCircle(Part.Circle(App.Vector(0, -75, 0), App.Vector(0, 0, 1), 2.5), math.radians(180), math.radians(360)),
    Part.LineSegment(App.Vector(-17.5, -75, 0), App.Vector(-17.5, -45, 0)),
    Part.ArcOfCircle(Part.Circle(App.Vector(-20, -45, 0), App.Vector(0, 0, 1), 2.5), math.radians(0), math.radians(180)),
    Part.LineSegment(App.Vector(-22.5, -45, 0), App.Vector(-22.5, -75, 0)),
    Part.ArcOfCircle(Part.Circle(App.Vector(-20, -75, 0), App.Vector(0, 0, 1), 2.5), math.radians(180), math.radians(360)),
    Part.LineSegment(App.Vector(-37.5, -75, 0), App.Vector(-37.5, -45, 0)),
    Part.ArcOfCircle(Part.Circle(App.Vector(-40, -45, 0), App.Vector(0, 0, 1), 2.5), math.radians(0), math.radians(180)),
    Part.LineSegment(App.Vector(-42.5, -45, 0), App.Vector(-42.5, -75, 0)),
    Part.ArcOfCircle(Part.Circle(App.Vector(-40, -75, 0), App.Vector(0, 0, 1), 2.5), math.radians(180), math.radians(360)),
], False)
sketch6.addConstraint([
    Sketcher.Constraint("Tangent", 0, 2, 1, 1),
    Sketcher.Constraint("Tangent", 1, 2, 2, 1),
    Sketcher.Constraint("Tangent", 2, 2, 3, 1),
    Sketcher.Constraint("Tangent", 3, 2, 0, 1),
    Sketcher.Constraint("Tangent", 4, 2, 5, 1),
    Sketcher.Constraint("Tangent", 5, 2, 6, 1),
    Sketcher.Constraint("Tangent", 6, 2, 7, 1),
    Sketcher.Constraint("Tangent", 7, 2, 4, 1),
    Sketcher.Constraint("Tangent", 8, 2, 9, 1),
    Sketcher.Constraint("Tangent", 9, 2, 10, 1),
    Sketcher.Constraint("Tangent", 10, 2, 11, 1),
    Sketcher.Constraint("Tangent", 11, 2, 8, 1),
    Sketcher.Constraint("Tangent", 12, 2, 13, 1),
    Sketcher.Constraint("Tangent", 13, 2, 14, 1),
    Sketcher.Constraint("Tangent", 14, 2, 15, 1),
    Sketcher.Constraint("Tangent", 15, 2, 12, 1),
    Sketcher.Constraint("Tangent", 16, 2, 17, 1),
    Sketcher.Constraint("Tangent", 17, 2, 18, 1),
    Sketcher.Constraint("Tangent", 18, 2, 19, 1),
    Sketcher.Constraint("Tangent", 19, 2, 16, 1),
    Sketcher.Constraint("Tangent", 20, 2, 21, 1),
    Sketcher.Constraint("Tangent", 21, 2, 22, 1),
    Sketcher.Constraint("Tangent", 22, 2, 23, 1),
    Sketcher.Constraint("Tangent", 23, 2, 20, 1),
    Sketcher.Constraint("Tangent", 24, 2, 25, 1),
    Sketcher.Constraint("Tangent", 25, 2, 26, 1),
    Sketcher.Constraint("Tangent", 26, 2, 27, 1),
    Sketcher.Constraint("Tangent", 27, 2, 24, 1),
    Sketcher.Constraint("Tangent", 28, 2, 29, 1),
    Sketcher.Constraint("Tangent", 29, 2, 30, 1),
    Sketcher.Constraint("Tangent", 30, 2, 31, 1),
    Sketcher.Constraint("Tangent", 31, 2, 28, 1),
    Sketcher.Constraint("Tangent", 32, 2, 33, 1),
    Sketcher.Constraint("Tangent", 33, 2, 34, 1),
    Sketcher.Constraint("Tangent", 34, 2, 35, 1),
    Sketcher.Constraint("Tangent", 35, 2, 32, 1),
    Sketcher.Constraint("Tangent", 36, 2, 37, 1),
    Sketcher.Constraint("Tangent", 37, 2, 38, 1),
    Sketcher.Constraint("Tangent", 38, 2, 39, 1),
    Sketcher.Constraint("Tangent", 39, 2, 36, 1),
    Sketcher.Constraint("Tangent", 40, 2, 41, 1),
    Sketcher.Constraint("Tangent", 41, 2, 42, 1),
    Sketcher.Constraint("Tangent", 42, 2, 43, 1),
    Sketcher.Constraint("Tangent", 43, 2, 40, 1),
    Sketcher.Constraint("Tangent", 44, 2, 45, 1),
    Sketcher.Constraint("Tangent", 45, 2, 46, 1),
    Sketcher.Constraint("Tangent", 46, 2, 47, 1),
    Sketcher.Constraint("Tangent", 47, 2, 44, 1),
    Sketcher.Constraint("Tangent", 48, 2, 49, 1),
    Sketcher.Constraint("Tangent", 49, 2, 50, 1),
    Sketcher.Constraint("Tangent", 50, 2, 51, 1),
    Sketcher.Constraint("Tangent", 51, 2, 48, 1),
    Sketcher.Constraint("Tangent", 52, 2, 53, 1),
    Sketcher.Constraint("Tangent", 53, 2, 54, 1),
    Sketcher.Constraint("Tangent", 54, 2, 55, 1),
    Sketcher.Constraint("Tangent", 55, 2, 52, 1),
    Sketcher.Constraint("Tangent", 56, 2, 57, 1),
    Sketcher.Constraint("Tangent", 57, 2, 58, 1),
    Sketcher.Constraint("Tangent", 58, 2, 59, 1),
    Sketcher.Constraint("Tangent", 59, 2, 56, 1),
    Sketcher.Constraint("Vertical", 0),
    Sketcher.Constraint("Vertical", 2),
    Sketcher.Constraint("Vertical", 4),
    Sketcher.Constraint("Vertical", 6),
    Sketcher.Constraint("Vertical", 8),
    Sketcher.Constraint("Vertical", 10),
    Sketcher.Constraint("Vertical", 12),
    Sketcher.Constraint("Vertical", 14),
    Sketcher.Constraint("Vertical", 16),
    Sketcher.Constraint("Vertical", 18),
    Sketcher.Constraint("Vertical", 20),
    Sketcher.Constraint("Vertical", 22),
    Sketcher.Constraint("Vertical", 24),
    Sketcher.Constraint("Vertical", 26),
    Sketcher.Constraint("Vertical", 28),
    Sketcher.Constraint("Vertical", 30),
    Sketcher.Constraint("Vertical", 32),
    Sketcher.Constraint("Vertical", 34),
    Sketcher.Constraint("Vertical", 36),
    Sketcher.Constraint("Vertical", 38),
    Sketcher.Constraint("Vertical", 40),
    Sketcher.Constraint("Vertical", 42),
    Sketcher.Constraint("Vertical", 44),
    Sketcher.Constraint("Vertical", 46),
    Sketcher.Constraint("Vertical", 48),
    Sketcher.Constraint("Vertical", 50),
    Sketcher.Constraint("Vertical", 52),
    Sketcher.Constraint("Vertical", 54),
    Sketcher.Constraint("Vertical", 56),
    Sketcher.Constraint("Vertical", 58),
    Sketcher.Constraint("Equal", 3, 5),
    Sketcher.Constraint("Equal", 7, 9),
    Sketcher.Constraint("Equal", 11, 13),
    Sketcher.Constraint("Equal", 15, 17),
    Sketcher.Constraint("Equal", 19, 21),
    Sketcher.Constraint("Equal", 23, 25),
    Sketcher.Constraint("Equal", 27, 29),
    Sketcher.Constraint("Equal", 31, 33),
    Sketcher.Constraint("Equal", 35, 37),
    Sketcher.Constraint("Equal", 39, 41),
    Sketcher.Constraint("Equal", 43, 45),
    Sketcher.Constraint("Equal", 47, 49),
    Sketcher.Constraint("Equal", 51, 53),
    Sketcher.Constraint("Equal", 55, 57),
    Sketcher.Constraint("Symmetric", 29, 3, 31, 3, -1, 1),
    Sketcher.Constraint("Symmetric", 27, 3, 33, 3, -1, 1),
    Sketcher.Constraint("Symmetric", 23, 3, 37, 3, -1, 1),
    Sketcher.Constraint("Symmetric", 19, 3, 41, 3, -1, 1),
    Sketcher.Constraint("Symmetric", 15, 3, 45, 3, -1, 1),
    Sketcher.Constraint("Symmetric", 11, 3, 49, 3, -1, 1),
    Sketcher.Constraint("Symmetric", 7, 3, 53, 3, -1, 1),
    Sketcher.Constraint("Symmetric", 3, 3, 57, 3, -1, 1),
    Sketcher.Constraint("Symmetric", 5, 3, 13, 3, -2),
    Sketcher.Constraint("Symmetric", 1, 3, 17, 3, -2),
    Sketcher.Constraint("Symmetric", 9, 3, 51, 3, -1),
    Sketcher.Constraint("Horizontal", 1, 3, 5, 3),
    Sketcher.Constraint("Horizontal", 3, 3, 7, 3),
    Sketcher.Constraint("Horizontal", 5, 3, 9, 3),
    Sketcher.Constraint("Horizontal", 7, 3, 11, 3),
    Sketcher.Constraint("Horizontal", 11, 3, 15, 3),
    Sketcher.Constraint("Horizontal", 15, 3, 19, 3),
    Sketcher.Constraint("Horizontal", 21, 3, 25, 3),
    Sketcher.Constraint("Horizontal", 23, 3, 27, 3),
    Sketcher.Constraint("Horizontal", 25, 3, 29, 3),
    Sketcher.Constraint("Horizontal", 27, 3, 31, 3),
    Sketcher.Constraint("Horizontal", 31, 3, 35, 3),
    Sketcher.Constraint("Horizontal", 35, 3, 39, 3),
    Sketcher.Constraint("Horizontal", 43, 3, 47, 3),
    Sketcher.Constraint("Horizontal", 47, 3, 51, 3),
    Sketcher.Constraint("Horizontal", 51, 3, 55, 3),
    Sketcher.Constraint("Horizontal", 55, 3, 59, 3),
    Sketcher.Constraint("Vertical", 3, 3, 21, 3),
    Sketcher.Constraint("Vertical", 7, 3, 25, 3),
    Sketcher.Constraint("Equal", 18, 20),
    Sketcher.Constraint("Radius", 1, Q("2.5 mm")),
    Sketcher.Constraint("DistanceY", 0, 1, 0, 2, Q("30 mm")),
    Sketcher.Constraint("DistanceX", -1, 1, 1, 3, Q("40 mm")),
    Sketcher.Constraint("DistanceY", -1, 1, 1, 3, Q("75 mm")),
    Sketcher.Constraint("DistanceX", -1, 1, 5, 3, Q("20 mm")),
])
pocket5 = doc.addObject("PartDesign::Pocket", "Pocket004")
body.addObject(pocket5)
pocket5.Profile = sketch6
pocket5.Length = 10

sketch7 = doc.addObject("Sketcher::SketchObject", "Sketch006")
body.addObject(sketch7)
sketch7.AttachmentSupport = (doc.XY_Plane, [""])
sketch7.MapMode = "FlatFace"
sketch7.AttachmentOffset = App.Placement(App.Vector(0, 0, 5), App.Rotation())
sketch7.addGeometry([
    Part.Circle(App.Vector(-65, 30, 0), App.Vector(0, 0, 1), 2.5),
    Part.Circle(App.Vector(-55, 30, 0), App.Vector(0, 0, 1), 2.5),
    Part.Circle(App.Vector(-45, 30, 0), App.Vector(0, 0, 1), 2.5),
    Part.Circle(App.Vector(-35, 30, 0), App.Vector(0, 0, 1), 2.5),
    Part.Circle(App.Vector(-25, 30, 0), App.Vector(0, 0, 1), 2.5),
    Part.Circle(App.Vector(-15, 30, 0), App.Vector(0, 0, 1), 2.5),
    Part.Circle(App.Vector(-5, 30, 0), App.Vector(0, 0, 1), 2.5),
    Part.Circle(App.Vector(5, 30, 0), App.Vector(0, 0, 1), 2.5),
    Part.Circle(App.Vector(15, 30, 0), App.Vector(0, 0, 1), 2.5),
    Part.Circle(App.Vector(25, 30, 0), App.Vector(0, 0, 1), 2.5),
    Part.Circle(App.Vector(35, 30, 0), App.Vector(0, 0, 1), 2.5),
    Part.Circle(App.Vector(45, 30, 0), App.Vector(0, 0, 1), 2.5),
    Part.Circle(App.Vector(55, 30, 0), App.Vector(0, 0, 1), 2.5),
    Part.Circle(App.Vector(65, 30, 0), App.Vector(0, 0, 1), 2.5),
    Part.Circle(App.Vector(65, -30, 0), App.Vector(0, 0, 1), 2.5),
    Part.Circle(App.Vector(55, -30, 0), App.Vector(0, 0, 1), 2.5),
    Part.Circle(App.Vector(45, -30, 0), App.Vector(0, 0, 1), 2.5),
    Part.Circle(App.Vector(35, -30, 0), App.Vector(0, 0, 1), 2.5),
    Part.Circle(App.Vector(25, -30, 0), App.Vector(0, 0, 1), 2.5),
    Part.Circle(App.Vector(15, -30, 0), App.Vector(0, 0, 1), 2.5),
    Part.Circle(App.Vector(5, -30, 0), App.Vector(0, 0, 1), 2.5),
    Part.Circle(App.Vector(-5, -30, 0), App.Vector(0, 0, 1), 2.5),
    Part.Circle(App.Vector(-15, -30, 0), App.Vector(0, 0, 1), 2.5),
    Part.Circle(App.Vector(-25, -30, 0), App.Vector(0, 0, 1), 2.5),
    Part.Circle(App.Vector(-35, -30, 0), App.Vector(0, 0, 1), 2.5),
    Part.Circle(App.Vector(-45, -30, 0), App.Vector(0, 0, 1), 2.5),
    Part.Circle(App.Vector(-55, -30, 0), App.Vector(0, 0, 1), 2.5),
    Part.Circle(App.Vector(-65, -30, 0), App.Vector(0, 0, 1), 2.5),
], False)
sketch7.addConstraint([
    Sketcher.Constraint("Equal", 0, 1),
    Sketcher.Constraint("Equal", 1, 2),
    Sketcher.Constraint("Equal", 2, 3),
    Sketcher.Constraint("Equal", 3, 4),
    Sketcher.Constraint("Equal", 4, 5),
    Sketcher.Constraint("Equal", 5, 6),
    Sketcher.Constraint("Equal", 6, 7),
    Sketcher.Constraint("Equal", 7, 8),
    Sketcher.Constraint("Equal", 8, 9),
    Sketcher.Constraint("Equal", 9, 10),
    Sketcher.Constraint("Equal", 10, 11),
    Sketcher.Constraint("Equal", 11, 12),
    Sketcher.Constraint("Equal", 12, 13),
    Sketcher.Constraint("Equal", 13, 14),
    Sketcher.Constraint("Equal", 14, 15),
    Sketcher.Constraint("Equal", 15, 16),
    Sketcher.Constraint("Equal", 16, 17),
    Sketcher.Constraint("Equal", 17, 18),
    Sketcher.Constraint("Equal", 18, 19),
    Sketcher.Constraint("Equal", 19, 20),
    Sketcher.Constraint("Equal", 20, 21),
    Sketcher.Constraint("Equal", 21, 22),
    Sketcher.Constraint("Equal", 22, 23),
    Sketcher.Constraint("Equal", 23, 24),
    Sketcher.Constraint("Equal", 24, 25),
    Sketcher.Constraint("Equal", 25, 26),
    Sketcher.Constraint("Equal", 26, 27),
    Sketcher.Constraint("Symmetric", 0, 3, 14, 3, -1, 1),
    Sketcher.Constraint("Symmetric", 1, 3, 15, 3, -1, 1),
    Sketcher.Constraint("Symmetric", 2, 3, 16, 3, -1, 1),
    Sketcher.Constraint("Symmetric", 3, 3, 17, 3, -1, 1),
    Sketcher.Constraint("Symmetric", 4, 3, 18, 3, -1, 1),
    Sketcher.Constraint("Symmetric", 5, 3, 19, 3, -1, 1),
    Sketcher.Constraint("Symmetric", 6, 3, 20, 3, -1, 1),
    Sketcher.Constraint("Symmetric", 7, 3, 21, 3, -1, 1),
    Sketcher.Constraint("Symmetric", 8, 3, 22, 3, -1, 1),
    Sketcher.Constraint("Symmetric", 9, 3, 23, 3, -1, 1),
    Sketcher.Constraint("Symmetric", 10, 3, 24, 3, -1, 1),
    Sketcher.Constraint("Symmetric", 11, 3, 25, 3, -1, 1),
    Sketcher.Constraint("Symmetric", 12, 3, 26, 3, -1, 1),
    Sketcher.Constraint("Symmetric", 13, 3, 27, 3, -1, 1),
    Sketcher.Constraint("Symmetric", 6, 3, 7, 3, -2),
    Sketcher.Constraint("Symmetric", 5, 3, 8, 3, -2),
    Sketcher.Constraint("Symmetric", 4, 3, 9, 3, -2),
    Sketcher.Constraint("Symmetric", 3, 3, 10, 3, -2),
    Sketcher.Constraint("Symmetric", 2, 3, 11, 3, -2),
    Sketcher.Constraint("Symmetric", 1, 3, 12, 3, -2),
    Sketcher.Constraint("Symmetric", 0, 3, 13, 3, -2),
    Sketcher.Constraint("Horizontal", 0, 3, 1, 3),
    Sketcher.Constraint("Horizontal", 1, 3, 2, 3),
    Sketcher.Constraint("Horizontal", 2, 3, 3, 3),
    Sketcher.Constraint("Horizontal", 3, 3, 4, 3),
    Sketcher.Constraint("Horizontal", 4, 3, 5, 3),
    Sketcher.Constraint("Horizontal", 5, 3, 6, 3),
    Sketcher.Constraint("Diameter", 0, Q("5 mm")),
    Sketcher.Constraint("DistanceX", 0, 3, -1, 1, Q("65 mm")),
    Sketcher.Constraint("DistanceY", -1, 1, 0, 3, Q("30 mm")),
    Sketcher.Constraint("DistanceX", 1, 3, -1, 1, Q("55 mm")),
    Sketcher.Constraint("DistanceX", 2, 3, -1, 1, Q("45 mm")),
    Sketcher.Constraint("DistanceX", 3, 3, -1, 1, Q("35 mm")),
    Sketcher.Constraint("DistanceX", 4, 3, -1, 1, Q("25 mm")),
    Sketcher.Constraint("DistanceX", 5, 3, -1, 1, Q("15 mm")),
    Sketcher.Constraint("DistanceX", 6, 3, -1, 1, Q("5 mm")),
])
pocket6 = doc.addObject("PartDesign::Pocket", "Pocket005")
body.addObject(pocket6)
pocket6.Profile = sketch7
pocket6.Length = 10

sketch8 = doc.addObject("Sketcher::SketchObject", "Sketch007")
body.addObject(sketch8)
sketch8.AttachmentSupport = (doc.XY_Plane, [""])
sketch8.MapMode = "FlatFace"
sketch8.AttachmentOffset = App.Placement(App.Vector(0, 0, 5), App.Rotation())
sketch8.addGeometry([
    Part.Circle(App.Vector(-65, 0, 0), App.Vector(0, 0, 1), 2.5),
    Part.Circle(App.Vector(-65, 15, 0), App.Vector(0, 0, 1), 2.5),
    Part.Circle(App.Vector(-65, -15, 0), App.Vector(0, 0, 1), 2.5),
    Part.Circle(App.Vector(65, -15, 0), App.Vector(0, 0, 1), 2.5),
    Part.Circle(App.Vector(65, 0, 0), App.Vector(0, 0, 1), 2.5),
    Part.Circle(App.Vector(65, 15, 0), App.Vector(0, 0, 1), 2.5),
], False)
sketch8.addConstraint([
    Sketcher.Constraint("Equal", 0, 1),
    Sketcher.Constraint("Equal", 1, 2),
    Sketcher.Constraint("Equal", 2, 3),
    Sketcher.Constraint("Equal", 3, 4),
    Sketcher.Constraint("Equal", 4, 5),
    Sketcher.Constraint("Symmetric", 1, 3, 3, 3, -1, 1),
    Sketcher.Constraint("Symmetric", 0, 3, 4, 3, -1, 1),
    Sketcher.Constraint("Symmetric", 2, 3, 5, 3, -1, 1),
    Sketcher.Constraint("Symmetric", 2, 3, 3, 3, -2),
    Sketcher.Constraint("PointOnObject", 0, 3, -1),
    Sketcher.Constraint("Vertical", 0, 3, 1, 3),
    Sketcher.Constraint("Diameter", 0, Q("5 mm")),
    Sketcher.Constraint("DistanceX", 0, 3, -1, 1, Q("65 mm")),
    Sketcher.Constraint("DistanceY", -1, 1, 1, 3, Q("15 mm")),
])
pocket7 = doc.addObject("PartDesign::Pocket", "Pocket006")
body.addObject(pocket7)
pocket7.Profile = sketch8
pocket7.Length = 10

doc.recompute()
